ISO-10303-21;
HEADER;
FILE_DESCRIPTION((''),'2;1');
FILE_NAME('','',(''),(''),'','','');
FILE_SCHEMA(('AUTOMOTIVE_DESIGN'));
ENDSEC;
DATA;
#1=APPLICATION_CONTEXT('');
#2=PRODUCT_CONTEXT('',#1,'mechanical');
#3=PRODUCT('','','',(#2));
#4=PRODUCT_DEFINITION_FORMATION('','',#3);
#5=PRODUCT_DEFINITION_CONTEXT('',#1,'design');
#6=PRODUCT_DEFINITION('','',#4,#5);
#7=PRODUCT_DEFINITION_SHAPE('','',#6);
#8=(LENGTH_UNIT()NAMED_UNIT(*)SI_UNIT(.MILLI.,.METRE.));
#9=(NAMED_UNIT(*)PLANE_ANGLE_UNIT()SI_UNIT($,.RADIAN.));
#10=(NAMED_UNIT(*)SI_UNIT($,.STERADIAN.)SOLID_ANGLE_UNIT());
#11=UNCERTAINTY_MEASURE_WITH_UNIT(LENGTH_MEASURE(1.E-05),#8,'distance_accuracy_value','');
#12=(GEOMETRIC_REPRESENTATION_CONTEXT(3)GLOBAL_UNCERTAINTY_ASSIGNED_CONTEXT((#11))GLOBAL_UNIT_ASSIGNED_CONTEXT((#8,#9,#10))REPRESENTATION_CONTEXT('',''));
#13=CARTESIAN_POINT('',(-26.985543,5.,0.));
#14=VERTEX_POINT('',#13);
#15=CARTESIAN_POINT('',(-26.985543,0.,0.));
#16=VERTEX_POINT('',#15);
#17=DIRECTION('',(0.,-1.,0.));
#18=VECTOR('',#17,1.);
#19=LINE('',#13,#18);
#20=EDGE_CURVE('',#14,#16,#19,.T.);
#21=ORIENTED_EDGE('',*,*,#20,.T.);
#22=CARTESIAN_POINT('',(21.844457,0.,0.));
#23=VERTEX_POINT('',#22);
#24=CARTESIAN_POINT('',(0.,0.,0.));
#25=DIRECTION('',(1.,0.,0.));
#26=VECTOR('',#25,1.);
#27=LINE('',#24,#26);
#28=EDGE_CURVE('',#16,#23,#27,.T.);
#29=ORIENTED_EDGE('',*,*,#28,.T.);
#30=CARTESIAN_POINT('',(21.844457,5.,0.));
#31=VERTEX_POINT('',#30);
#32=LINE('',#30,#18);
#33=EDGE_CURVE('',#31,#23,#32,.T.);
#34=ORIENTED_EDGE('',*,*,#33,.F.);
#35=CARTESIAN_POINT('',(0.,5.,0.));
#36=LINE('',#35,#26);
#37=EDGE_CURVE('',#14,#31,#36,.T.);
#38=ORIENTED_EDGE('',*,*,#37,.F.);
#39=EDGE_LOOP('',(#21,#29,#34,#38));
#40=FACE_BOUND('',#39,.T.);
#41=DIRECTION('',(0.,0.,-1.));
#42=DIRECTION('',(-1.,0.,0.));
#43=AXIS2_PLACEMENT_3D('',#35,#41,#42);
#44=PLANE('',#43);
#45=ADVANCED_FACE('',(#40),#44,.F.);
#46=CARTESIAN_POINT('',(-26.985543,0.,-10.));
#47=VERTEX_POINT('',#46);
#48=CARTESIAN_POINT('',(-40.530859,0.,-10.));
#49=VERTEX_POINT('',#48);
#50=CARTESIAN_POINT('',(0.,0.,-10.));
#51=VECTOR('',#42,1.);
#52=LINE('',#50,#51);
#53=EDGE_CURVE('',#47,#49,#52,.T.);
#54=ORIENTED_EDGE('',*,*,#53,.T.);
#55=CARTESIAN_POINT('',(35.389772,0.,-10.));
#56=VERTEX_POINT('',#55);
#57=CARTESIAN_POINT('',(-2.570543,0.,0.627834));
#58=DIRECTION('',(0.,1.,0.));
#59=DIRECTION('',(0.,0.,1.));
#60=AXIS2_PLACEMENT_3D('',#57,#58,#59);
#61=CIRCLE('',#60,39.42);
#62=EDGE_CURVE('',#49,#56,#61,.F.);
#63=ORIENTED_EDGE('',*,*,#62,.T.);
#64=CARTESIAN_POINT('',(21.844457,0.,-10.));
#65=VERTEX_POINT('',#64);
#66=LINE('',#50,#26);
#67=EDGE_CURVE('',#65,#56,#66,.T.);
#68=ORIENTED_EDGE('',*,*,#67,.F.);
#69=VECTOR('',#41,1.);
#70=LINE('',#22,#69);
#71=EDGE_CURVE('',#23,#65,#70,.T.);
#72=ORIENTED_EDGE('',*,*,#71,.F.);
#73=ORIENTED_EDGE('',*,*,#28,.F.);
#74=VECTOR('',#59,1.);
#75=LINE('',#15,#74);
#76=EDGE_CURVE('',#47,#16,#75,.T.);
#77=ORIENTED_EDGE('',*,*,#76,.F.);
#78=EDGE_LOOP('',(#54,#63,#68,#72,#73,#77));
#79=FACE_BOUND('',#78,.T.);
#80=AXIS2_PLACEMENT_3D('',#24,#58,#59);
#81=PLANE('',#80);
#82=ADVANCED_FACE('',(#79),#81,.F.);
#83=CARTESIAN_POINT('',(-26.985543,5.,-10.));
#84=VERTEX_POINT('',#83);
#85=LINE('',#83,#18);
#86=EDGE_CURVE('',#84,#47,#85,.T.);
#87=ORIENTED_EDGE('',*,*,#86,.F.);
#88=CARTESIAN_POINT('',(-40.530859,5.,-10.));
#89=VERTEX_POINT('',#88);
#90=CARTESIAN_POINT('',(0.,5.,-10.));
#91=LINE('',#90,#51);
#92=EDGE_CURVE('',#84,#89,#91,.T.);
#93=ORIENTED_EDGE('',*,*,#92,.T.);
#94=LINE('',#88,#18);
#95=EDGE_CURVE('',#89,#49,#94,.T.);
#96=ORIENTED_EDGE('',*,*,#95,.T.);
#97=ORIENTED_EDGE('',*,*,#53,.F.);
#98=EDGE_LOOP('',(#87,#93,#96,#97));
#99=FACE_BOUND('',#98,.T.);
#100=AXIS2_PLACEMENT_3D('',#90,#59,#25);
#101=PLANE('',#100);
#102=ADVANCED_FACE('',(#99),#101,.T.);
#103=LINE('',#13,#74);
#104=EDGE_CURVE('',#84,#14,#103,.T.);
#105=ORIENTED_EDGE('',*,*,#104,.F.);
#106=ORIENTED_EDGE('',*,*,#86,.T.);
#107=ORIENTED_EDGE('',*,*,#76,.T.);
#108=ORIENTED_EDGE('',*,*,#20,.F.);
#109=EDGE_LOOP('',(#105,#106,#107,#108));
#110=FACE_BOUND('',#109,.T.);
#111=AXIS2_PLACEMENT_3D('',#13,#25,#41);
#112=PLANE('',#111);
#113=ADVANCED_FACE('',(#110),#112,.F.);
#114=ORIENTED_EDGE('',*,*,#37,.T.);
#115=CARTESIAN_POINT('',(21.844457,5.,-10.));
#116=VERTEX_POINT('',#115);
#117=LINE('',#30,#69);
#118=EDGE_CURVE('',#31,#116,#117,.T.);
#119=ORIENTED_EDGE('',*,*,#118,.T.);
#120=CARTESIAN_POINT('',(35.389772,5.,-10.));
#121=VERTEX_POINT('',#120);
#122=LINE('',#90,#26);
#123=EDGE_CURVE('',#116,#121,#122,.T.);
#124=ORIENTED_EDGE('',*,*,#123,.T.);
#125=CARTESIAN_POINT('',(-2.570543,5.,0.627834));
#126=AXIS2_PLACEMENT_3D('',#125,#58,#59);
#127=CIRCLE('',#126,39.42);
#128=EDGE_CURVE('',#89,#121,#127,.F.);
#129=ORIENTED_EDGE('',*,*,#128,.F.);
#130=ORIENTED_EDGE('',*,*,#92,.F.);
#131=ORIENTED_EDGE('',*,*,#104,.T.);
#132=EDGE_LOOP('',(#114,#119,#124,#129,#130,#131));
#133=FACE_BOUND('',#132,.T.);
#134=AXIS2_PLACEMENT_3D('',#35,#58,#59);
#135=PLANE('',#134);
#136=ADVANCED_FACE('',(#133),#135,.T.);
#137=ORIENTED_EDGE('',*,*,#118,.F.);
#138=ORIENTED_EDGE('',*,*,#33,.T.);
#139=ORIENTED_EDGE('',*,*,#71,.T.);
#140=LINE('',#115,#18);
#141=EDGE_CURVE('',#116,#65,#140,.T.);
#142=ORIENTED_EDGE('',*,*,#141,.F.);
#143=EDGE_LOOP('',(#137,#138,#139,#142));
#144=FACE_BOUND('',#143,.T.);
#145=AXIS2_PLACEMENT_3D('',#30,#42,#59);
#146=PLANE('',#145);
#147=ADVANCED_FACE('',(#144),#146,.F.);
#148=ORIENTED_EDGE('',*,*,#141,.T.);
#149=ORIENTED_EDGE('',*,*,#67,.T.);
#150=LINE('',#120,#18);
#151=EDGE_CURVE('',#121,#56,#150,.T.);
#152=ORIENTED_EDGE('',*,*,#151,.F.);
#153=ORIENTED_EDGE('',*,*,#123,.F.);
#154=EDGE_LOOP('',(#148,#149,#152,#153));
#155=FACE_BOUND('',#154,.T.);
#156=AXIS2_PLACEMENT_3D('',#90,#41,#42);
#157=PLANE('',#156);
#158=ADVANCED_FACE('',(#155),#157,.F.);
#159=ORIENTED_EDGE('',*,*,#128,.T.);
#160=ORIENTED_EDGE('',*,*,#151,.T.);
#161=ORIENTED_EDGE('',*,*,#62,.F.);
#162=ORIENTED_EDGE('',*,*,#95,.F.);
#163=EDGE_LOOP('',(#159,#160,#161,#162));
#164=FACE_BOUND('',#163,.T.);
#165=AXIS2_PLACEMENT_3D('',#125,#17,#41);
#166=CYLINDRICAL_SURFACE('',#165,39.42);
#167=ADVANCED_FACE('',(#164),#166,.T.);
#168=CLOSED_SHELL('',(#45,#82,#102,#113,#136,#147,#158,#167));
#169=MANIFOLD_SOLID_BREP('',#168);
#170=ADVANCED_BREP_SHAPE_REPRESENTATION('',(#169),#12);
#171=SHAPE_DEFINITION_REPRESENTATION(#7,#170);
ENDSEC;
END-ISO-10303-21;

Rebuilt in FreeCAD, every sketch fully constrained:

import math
import FreeCAD as App
import Part
import Sketcher
from FreeCAD import Vector
Q = App.Units.Quantity

doc = App.newDocument("Part")
body = doc.addObject("PartDesign::Body", "Body")

# Sketch on XZ plane
sketch1 = body.newObject("Sketcher::SketchObject", "Sketch")
sketch1.AttachmentSupport = (doc.getObject("XZ_Plane"), [""])
sketch1.MapMode = "FlatFace"
sketch1.addGeometry([
    Part.ArcOfCircle(Part.Circle(Vector(-3, 1, 0), Vector(0, 0, 1), 39), math.radians(-164), math.radians(-16)),  # 0
    Part.LineSegment(Vector(-41, -10, 0), Vector(-27, -10, 0)),  # 1
    Part.LineSegment(Vector(-27, -10, 0), Vector(-27, 0, 0)),  # 2
    Part.LineSegment(Vector(-27, 0, 0), Vector(22, 0, 0)),  # 3
    Part.LineSegment(Vector(22, 0, 0), Vector(22, -10, 0)),  # 4
    Part.LineSegment(Vector(22, -10, 0), Vector(35, -10, 0)),  # 5
], False)
sketch1.addConstraint([
    Sketcher.Constraint("Coincident", 0, 1, 1, 1),
    Sketcher.Constraint("Coincident", 1, 2, 2, 1),
    Sketcher.Constraint("Coincident", 2, 2, 3, 1),
    Sketcher.Constraint("Coincident", 3, 2, 4, 1),
    Sketcher.Constraint("Coincident", 4, 2, 5, 1),
    Sketcher.Constraint("Coincident", 5, 2, 0, 2),
    Sketcher.Constraint("Horizontal", 1),
    Sketcher.Constraint("Vertical", 2),
    Sketcher.Constraint("Horizontal", 3),
    Sketcher.Constraint("Vertical", 4),
    Sketcher.Constraint("Horizontal", 5),
    Sketcher.Constraint("PointOnObject", 2, 2, -1),
    Sketcher.Constraint("Horizontal", 1, 2, 4, 2),
    Sketcher.Constraint("Equal", 1, 5),
    Sketcher.Constraint("DistanceY", 2, 1, 2, 2, Q("10 mm")),
    Sketcher.Constraint("Radius", 0, Q("39.42 mm")),
    Sketcher.Constraint("DistanceX", 3, 1, 3, 2, Q("48.83 mm")),
    Sketcher.Constraint("DistanceX", 1, 1, 1, 2, Q("13.545316 mm")),
    Sketcher.Constraint("DistanceX", 0, 1, -1, 1, Q("40.530859 mm")),
])
pad1 = body.newObject("PartDesign::Pad", "Pad")
pad1.Profile = sketch1
pad1.Length = 5
pad1.Reversed = True

doc.recompute()
